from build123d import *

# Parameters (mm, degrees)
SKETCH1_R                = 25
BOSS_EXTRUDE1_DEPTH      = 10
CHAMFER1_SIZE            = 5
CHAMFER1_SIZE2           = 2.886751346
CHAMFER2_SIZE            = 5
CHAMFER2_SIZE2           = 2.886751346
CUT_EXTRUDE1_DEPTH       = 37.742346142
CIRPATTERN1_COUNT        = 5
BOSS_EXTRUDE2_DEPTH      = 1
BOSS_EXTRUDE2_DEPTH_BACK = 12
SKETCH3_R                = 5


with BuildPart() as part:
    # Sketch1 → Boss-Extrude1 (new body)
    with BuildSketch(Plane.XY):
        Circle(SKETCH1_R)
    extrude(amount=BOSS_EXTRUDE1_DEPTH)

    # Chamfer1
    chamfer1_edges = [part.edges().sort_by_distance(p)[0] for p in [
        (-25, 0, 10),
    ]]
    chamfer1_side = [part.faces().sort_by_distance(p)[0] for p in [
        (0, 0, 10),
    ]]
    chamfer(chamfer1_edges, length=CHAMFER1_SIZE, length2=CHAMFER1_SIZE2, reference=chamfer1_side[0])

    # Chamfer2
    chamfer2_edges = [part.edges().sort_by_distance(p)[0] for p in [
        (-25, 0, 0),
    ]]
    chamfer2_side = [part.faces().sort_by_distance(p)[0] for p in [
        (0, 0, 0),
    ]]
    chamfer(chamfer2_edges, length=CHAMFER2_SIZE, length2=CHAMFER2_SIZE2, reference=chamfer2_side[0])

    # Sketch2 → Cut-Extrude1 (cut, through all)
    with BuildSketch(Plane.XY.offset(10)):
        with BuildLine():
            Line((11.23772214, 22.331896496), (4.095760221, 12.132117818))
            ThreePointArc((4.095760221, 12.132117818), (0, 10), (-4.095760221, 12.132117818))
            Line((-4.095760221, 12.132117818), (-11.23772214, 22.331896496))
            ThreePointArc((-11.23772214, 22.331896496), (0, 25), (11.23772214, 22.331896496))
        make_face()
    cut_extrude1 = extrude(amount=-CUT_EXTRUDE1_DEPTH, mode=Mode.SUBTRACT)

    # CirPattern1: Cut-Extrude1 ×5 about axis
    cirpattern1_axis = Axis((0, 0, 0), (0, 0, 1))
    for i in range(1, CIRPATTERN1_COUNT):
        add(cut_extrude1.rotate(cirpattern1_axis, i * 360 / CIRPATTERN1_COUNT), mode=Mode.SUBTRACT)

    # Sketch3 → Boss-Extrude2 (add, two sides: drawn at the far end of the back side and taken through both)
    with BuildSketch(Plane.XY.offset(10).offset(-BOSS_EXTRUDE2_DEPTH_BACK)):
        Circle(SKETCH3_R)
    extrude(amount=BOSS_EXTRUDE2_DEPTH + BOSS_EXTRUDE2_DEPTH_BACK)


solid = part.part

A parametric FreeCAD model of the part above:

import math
import FreeCAD as App
import Part
import Sketcher
Q = App.Units.Quantity


def edges_at(feature, points):
    """Names of the edges that pass closest to the given points."""
    edges = feature.Shape.Edges
    near = lambda p: min(range(len(edges)), key=lambda i: edges[i].distToShape(Part.Vertex(*p))[0])
    return sorted({f"Edge{near(p) + 1}" for p in points})

doc = App.newDocument("Part")
params = doc.addObject("Spreadsheet::Sheet", "Params")
for row, (alias, value) in enumerate([
    ("sketch1_diameter", "50 mm"),
    ("pad1_length", "10 mm"),
    ("chamfer_size", "5 mm"),
    ("chamfer_size2", "2.886751 mm"),
    ("chamfer2_size", "5 mm"),
    ("chamfer2_size2", "2.886751 mm"),
    ("sketch2_radius", "25 mm"),
    ("sketch2_radius2", "5 mm"),
    ("sketch3_diameter", "10 mm"),
    ("pad2_length", "1 mm"),
    ("pad2_length2", "12 mm"),
], start=1):
    params.set(f"A{row}", alias)
    params.set(f"B{row}", "=" + value)
    params.setAlias(f"B{row}", alias)

body = doc.addObject("PartDesign::Body", "Body")

# Sketch on XY plane
sketch1 = doc.addObject("Sketcher::SketchObject", "Sketch")
body.addObject(sketch1)
sketch1.AttachmentSupport = (doc.XY_Plane, [""])
sketch1.MapMode = "FlatFace"
sketch1.addGeometry(Part.Circle(App.Vector(0, 0, 0), App.Vector(0, 0, 1), 25), False)
sketch1.addConstraint([
    Sketcher.Constraint("Coincident", 0, 3, -1, 1),
    Sketcher.Constraint("Diameter", 0, Q("50 mm")),
])
sketch1.setExpression("Constraints[1]", "Params.sketch1_diameter")
pad1 = doc.addObject("PartDesign::Pad", "Pad")
body.addObject(pad1)
pad1.Profile = sketch1
pad1.setExpression("Length", "Params.pad1_length")
doc.recompute()

chamfer = doc.addObject("PartDesign::Chamfer", "Chamfer")
body.addObject(chamfer)
chamfer.Base = (pad1, edges_at(pad1, [(-25, 0, 10)]))
chamfer.ChamferType = "Two distances"
chamfer.setExpression("Size", "Params.chamfer_size")
chamfer.setExpression("Size2", "Params.chamfer_size2")
chamfer.FlipDirection = True
doc.recompute()

chamfer2 = doc.addObject("PartDesign::Chamfer", "Chamfer001")
body.addObject(chamfer2)
chamfer2.Base = (chamfer, edges_at(chamfer, [(-25, 0, 0)]))
chamfer2.ChamferType = "Two distances"
chamfer2.setExpression("Size", "Params.chamfer2_size")
chamfer2.setExpression("Size2", "Params.chamfer2_size2")
chamfer2.FlipDirection = True

# Sketch on XY plane
sketch2 = doc.addObject("Sketcher::SketchObject", "Sketch001")
body.addObject(sketch2)
sketch2.AttachmentSupport = (doc.XY_Plane, [""])
sketch2.MapMode = "FlatFace"
sketch2.AttachmentOffset = App.Placement(App.Vector(0, 0, 10), App.Rotation())
sketch2.addGeometry([
    Part.LineSegment(App.Vector(4.1, 12.1, 0), App.Vector(11.2, 22.3, 0)),
    Part.ArcOfCircle(Part.Circle(App.Vector(0, 0, 0), App.Vector(0, 0, 1), 25), math.radians(63), math.radians(117)),
    Part.LineSegment(App.Vector(-11.2, 22.3, 0), App.Vector(-4.1, 12.1, 0)),
    Part.ArcOfCircle(Part.Circle(App.Vector(0, 15, 0), App.Vector(0, 0, 1), 5), math.radians(-145), math.radians(-35)),
], False)
sketch2.addConstraint([
    Sketcher.Constraint("Coincident", 0, 2, 1, 1),
    Sketcher.Constraint("Coincident", 1, 2, 2, 1),
    Sketcher.Constraint("Tangent", 2, 2, 3, 1),
    Sketcher.Constraint("Tangent", 3, 2, 0, 1),
    Sketcher.Constraint("Coincident", 1, 3, -1, 1),
    Sketcher.Constraint("Symmetric", 2, 2, 3, 2, -2),
    Sketcher.Constraint("Radius", 1, Q("25 mm")),
    Sketcher.Constraint("Radius", 3, Q("5 mm")),
    Sketcher.Constraint("Angle", 0, Q("55 deg")),
    Sketcher.Constraint("DistanceY", -1, 1, 3, 3, Q("15 mm")),
])
sketch2.setExpression("Constraints[6]", "Params.sketch2_radius")
sketch2.setExpression("Constraints[7]", "Params.sketch2_radius2")
pocket1 = doc.addObject("PartDesign::Pocket", "Pocket")
body.addObject(pocket1)
pocket1.Profile = sketch2
pocket1.Type = "ThroughAll"
doc.recompute()

polarpattern = doc.addObject("PartDesign::PolarPattern", "PolarPattern")
body.addObject(polarpattern)
polarpattern.Originals = [pocket1]
polarpattern.Axis = (doc.Z_Axis, [""])
polarpattern.Angle = 360
polarpattern.Occurrences = 5
body.Tip = polarpattern

# Sketch on XY plane
sketch3 = doc.addObject("Sketcher::SketchObject", "Sketch002")
body.addObject(sketch3)
sketch3.AttachmentSupport = (doc.XY_Plane, [""])
sketch3.MapMode = "FlatFace"
sketch3.AttachmentOffset = App.Placement(App.Vector(0, 0, 10), App.Rotation())
sketch3.addGeometry(Part.Circle(App.Vector(0, 0, 0), App.Vector(0, 0, 1), 5), False)
sketch3.addConstraint([
    Sketcher.Constraint("Coincident", 0, 3, -1, 1),
    Sketcher.Constraint("Diameter", 0, Q("10 mm")),
])
sketch3.setExpression("Constraints[1]", "Params.sketch3_diameter")
pad2 = doc.addObject("PartDesign::Pad", "Pad001")
body.addObject(pad2)
pad2.Profile = sketch3
pad2.Type = "TwoLengths"
pad2.setExpression("Length", "Params.pad2_length")
pad2.setExpression("Length2", "Params.pad2_length2")

doc.recompute()
